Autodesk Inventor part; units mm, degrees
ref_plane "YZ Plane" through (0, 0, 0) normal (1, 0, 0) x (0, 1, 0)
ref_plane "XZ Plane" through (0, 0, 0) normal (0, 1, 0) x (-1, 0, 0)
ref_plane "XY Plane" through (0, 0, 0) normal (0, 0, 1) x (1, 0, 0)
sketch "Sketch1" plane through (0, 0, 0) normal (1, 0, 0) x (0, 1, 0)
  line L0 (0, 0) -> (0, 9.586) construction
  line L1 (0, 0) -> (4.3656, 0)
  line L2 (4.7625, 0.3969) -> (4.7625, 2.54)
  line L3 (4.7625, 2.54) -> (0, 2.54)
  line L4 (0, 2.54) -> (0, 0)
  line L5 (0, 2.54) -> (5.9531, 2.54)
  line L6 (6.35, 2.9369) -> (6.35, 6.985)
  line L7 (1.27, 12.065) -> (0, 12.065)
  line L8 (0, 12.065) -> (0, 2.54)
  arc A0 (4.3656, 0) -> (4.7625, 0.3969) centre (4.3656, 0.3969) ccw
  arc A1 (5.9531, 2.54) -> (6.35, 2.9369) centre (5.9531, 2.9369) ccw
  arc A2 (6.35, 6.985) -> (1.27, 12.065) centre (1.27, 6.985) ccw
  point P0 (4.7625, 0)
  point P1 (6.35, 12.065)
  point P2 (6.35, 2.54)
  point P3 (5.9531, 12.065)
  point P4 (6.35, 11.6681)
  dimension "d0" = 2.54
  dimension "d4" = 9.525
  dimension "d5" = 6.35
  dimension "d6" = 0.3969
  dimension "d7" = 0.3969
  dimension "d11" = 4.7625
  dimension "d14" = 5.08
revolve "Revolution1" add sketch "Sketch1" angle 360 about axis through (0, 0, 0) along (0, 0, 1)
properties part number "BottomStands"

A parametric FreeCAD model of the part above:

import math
import FreeCAD as App
import Part
import Sketcher

V = App.Vector
Q = App.Units.Quantity

doc = App.newDocument("Part")
body = doc.addObject("PartDesign::Body", "Body")

# Sketch on YZ plane
sketch1 = doc.addObject("Sketcher::SketchObject", "Sketch")
body.addObject(sketch1)
sketch1.AttachmentSupport = (doc.YZ_Plane, [""])
sketch1.MapMode = "FlatFace"
sketch1.addGeometry([
    Part.LineSegment(V(0, 0, 0), V(4.3656, 0, 0)),  # 0
    Part.ArcOfCircle(Part.Circle(V(4.3656, 0.3969, 0), V(0, 0, 1), 0.3969), math.radians(-90), math.radians(0)),  # 1
    Part.LineSegment(V(4.7625, 0.3969, 0), V(4.7625, 2.54, 0)),  # 2
    Part.LineSegment(V(4.7625, 2.54, 0), V(5.9531, 2.54, 0)),  # 3
    Part.ArcOfCircle(Part.Circle(V(5.9531, 2.9369, 0), V(0, 0, 1), 0.3969), math.radians(-90), math.radians(0)),  # 4
    Part.LineSegment(V(6.35, 2.9369, 0), V(6.35, 6.985, 0)),  # 5
    Part.ArcOfCircle(Part.Circle(V(1.27, 6.985, 0), V(0, 0, 1), 5.08), math.radians(0), math.radians(90)),  # 6
    Part.LineSegment(V(1.27, 12.065, 0), V(0, 12.065, 0)),  # 7
    Part.LineSegment(V(0, 12.065, 0), V(0, 0, 0)),  # 8
], False)
sketch1.addConstraint([
    Sketcher.Constraint("Tangent", 0, 2, 1, 1),
    Sketcher.Constraint("Tangent", 1, 2, 2, 1),
    Sketcher.Constraint("Coincident", 2, 2, 3, 1),
    Sketcher.Constraint("Tangent", 3, 2, 4, 1),
    Sketcher.Constraint("Tangent", 4, 2, 5, 1),
    Sketcher.Constraint("Tangent", 5, 2, 6, 1),
    Sketcher.Constraint("Tangent", 6, 2, 7, 1),
    Sketcher.Constraint("Coincident", 7, 2, 8, 1),
    Sketcher.Constraint("Coincident", 8, 2, 0, 1),
    Sketcher.Constraint("Horizontal", 0),
    Sketcher.Constraint("Vertical", 2),
    Sketcher.Constraint("Horizontal", 3),
    Sketcher.Constraint("Vertical", 5),
    Sketcher.Constraint("Horizontal", 7),
    Sketcher.Constraint("Vertical", 8),
    Sketcher.Constraint("Coincident", 8, 2, -1, 1),
    Sketcher.Constraint("Equal", 1, 4),
    Sketcher.Constraint("Radius", 6, Q("0.2 in")),
    Sketcher.Constraint("Radius", 1, Q("0.0156299 in")),
    Sketcher.Constraint("DistanceY", -1, 1, 2, 2, Q("0.1 in")),
    Sketcher.Constraint("DistanceX", -1, 1, 4, 2, Q("0.25 in")),
    Sketcher.Constraint("DistanceX", -1, 1, 1, 2, Q("0.1875 in")),
    Sketcher.Constraint("DistanceY", 2, 2, 6, 2, Q("0.375 in")),
])
revolution = doc.addObject("PartDesign::Revolution", "Revolution")
body.addObject(revolution)
revolution.Profile = sketch1
revolution.ReferenceAxis = (sketch1, ["V_Axis"])
revolution.Angle = 360

doc.recompute()
